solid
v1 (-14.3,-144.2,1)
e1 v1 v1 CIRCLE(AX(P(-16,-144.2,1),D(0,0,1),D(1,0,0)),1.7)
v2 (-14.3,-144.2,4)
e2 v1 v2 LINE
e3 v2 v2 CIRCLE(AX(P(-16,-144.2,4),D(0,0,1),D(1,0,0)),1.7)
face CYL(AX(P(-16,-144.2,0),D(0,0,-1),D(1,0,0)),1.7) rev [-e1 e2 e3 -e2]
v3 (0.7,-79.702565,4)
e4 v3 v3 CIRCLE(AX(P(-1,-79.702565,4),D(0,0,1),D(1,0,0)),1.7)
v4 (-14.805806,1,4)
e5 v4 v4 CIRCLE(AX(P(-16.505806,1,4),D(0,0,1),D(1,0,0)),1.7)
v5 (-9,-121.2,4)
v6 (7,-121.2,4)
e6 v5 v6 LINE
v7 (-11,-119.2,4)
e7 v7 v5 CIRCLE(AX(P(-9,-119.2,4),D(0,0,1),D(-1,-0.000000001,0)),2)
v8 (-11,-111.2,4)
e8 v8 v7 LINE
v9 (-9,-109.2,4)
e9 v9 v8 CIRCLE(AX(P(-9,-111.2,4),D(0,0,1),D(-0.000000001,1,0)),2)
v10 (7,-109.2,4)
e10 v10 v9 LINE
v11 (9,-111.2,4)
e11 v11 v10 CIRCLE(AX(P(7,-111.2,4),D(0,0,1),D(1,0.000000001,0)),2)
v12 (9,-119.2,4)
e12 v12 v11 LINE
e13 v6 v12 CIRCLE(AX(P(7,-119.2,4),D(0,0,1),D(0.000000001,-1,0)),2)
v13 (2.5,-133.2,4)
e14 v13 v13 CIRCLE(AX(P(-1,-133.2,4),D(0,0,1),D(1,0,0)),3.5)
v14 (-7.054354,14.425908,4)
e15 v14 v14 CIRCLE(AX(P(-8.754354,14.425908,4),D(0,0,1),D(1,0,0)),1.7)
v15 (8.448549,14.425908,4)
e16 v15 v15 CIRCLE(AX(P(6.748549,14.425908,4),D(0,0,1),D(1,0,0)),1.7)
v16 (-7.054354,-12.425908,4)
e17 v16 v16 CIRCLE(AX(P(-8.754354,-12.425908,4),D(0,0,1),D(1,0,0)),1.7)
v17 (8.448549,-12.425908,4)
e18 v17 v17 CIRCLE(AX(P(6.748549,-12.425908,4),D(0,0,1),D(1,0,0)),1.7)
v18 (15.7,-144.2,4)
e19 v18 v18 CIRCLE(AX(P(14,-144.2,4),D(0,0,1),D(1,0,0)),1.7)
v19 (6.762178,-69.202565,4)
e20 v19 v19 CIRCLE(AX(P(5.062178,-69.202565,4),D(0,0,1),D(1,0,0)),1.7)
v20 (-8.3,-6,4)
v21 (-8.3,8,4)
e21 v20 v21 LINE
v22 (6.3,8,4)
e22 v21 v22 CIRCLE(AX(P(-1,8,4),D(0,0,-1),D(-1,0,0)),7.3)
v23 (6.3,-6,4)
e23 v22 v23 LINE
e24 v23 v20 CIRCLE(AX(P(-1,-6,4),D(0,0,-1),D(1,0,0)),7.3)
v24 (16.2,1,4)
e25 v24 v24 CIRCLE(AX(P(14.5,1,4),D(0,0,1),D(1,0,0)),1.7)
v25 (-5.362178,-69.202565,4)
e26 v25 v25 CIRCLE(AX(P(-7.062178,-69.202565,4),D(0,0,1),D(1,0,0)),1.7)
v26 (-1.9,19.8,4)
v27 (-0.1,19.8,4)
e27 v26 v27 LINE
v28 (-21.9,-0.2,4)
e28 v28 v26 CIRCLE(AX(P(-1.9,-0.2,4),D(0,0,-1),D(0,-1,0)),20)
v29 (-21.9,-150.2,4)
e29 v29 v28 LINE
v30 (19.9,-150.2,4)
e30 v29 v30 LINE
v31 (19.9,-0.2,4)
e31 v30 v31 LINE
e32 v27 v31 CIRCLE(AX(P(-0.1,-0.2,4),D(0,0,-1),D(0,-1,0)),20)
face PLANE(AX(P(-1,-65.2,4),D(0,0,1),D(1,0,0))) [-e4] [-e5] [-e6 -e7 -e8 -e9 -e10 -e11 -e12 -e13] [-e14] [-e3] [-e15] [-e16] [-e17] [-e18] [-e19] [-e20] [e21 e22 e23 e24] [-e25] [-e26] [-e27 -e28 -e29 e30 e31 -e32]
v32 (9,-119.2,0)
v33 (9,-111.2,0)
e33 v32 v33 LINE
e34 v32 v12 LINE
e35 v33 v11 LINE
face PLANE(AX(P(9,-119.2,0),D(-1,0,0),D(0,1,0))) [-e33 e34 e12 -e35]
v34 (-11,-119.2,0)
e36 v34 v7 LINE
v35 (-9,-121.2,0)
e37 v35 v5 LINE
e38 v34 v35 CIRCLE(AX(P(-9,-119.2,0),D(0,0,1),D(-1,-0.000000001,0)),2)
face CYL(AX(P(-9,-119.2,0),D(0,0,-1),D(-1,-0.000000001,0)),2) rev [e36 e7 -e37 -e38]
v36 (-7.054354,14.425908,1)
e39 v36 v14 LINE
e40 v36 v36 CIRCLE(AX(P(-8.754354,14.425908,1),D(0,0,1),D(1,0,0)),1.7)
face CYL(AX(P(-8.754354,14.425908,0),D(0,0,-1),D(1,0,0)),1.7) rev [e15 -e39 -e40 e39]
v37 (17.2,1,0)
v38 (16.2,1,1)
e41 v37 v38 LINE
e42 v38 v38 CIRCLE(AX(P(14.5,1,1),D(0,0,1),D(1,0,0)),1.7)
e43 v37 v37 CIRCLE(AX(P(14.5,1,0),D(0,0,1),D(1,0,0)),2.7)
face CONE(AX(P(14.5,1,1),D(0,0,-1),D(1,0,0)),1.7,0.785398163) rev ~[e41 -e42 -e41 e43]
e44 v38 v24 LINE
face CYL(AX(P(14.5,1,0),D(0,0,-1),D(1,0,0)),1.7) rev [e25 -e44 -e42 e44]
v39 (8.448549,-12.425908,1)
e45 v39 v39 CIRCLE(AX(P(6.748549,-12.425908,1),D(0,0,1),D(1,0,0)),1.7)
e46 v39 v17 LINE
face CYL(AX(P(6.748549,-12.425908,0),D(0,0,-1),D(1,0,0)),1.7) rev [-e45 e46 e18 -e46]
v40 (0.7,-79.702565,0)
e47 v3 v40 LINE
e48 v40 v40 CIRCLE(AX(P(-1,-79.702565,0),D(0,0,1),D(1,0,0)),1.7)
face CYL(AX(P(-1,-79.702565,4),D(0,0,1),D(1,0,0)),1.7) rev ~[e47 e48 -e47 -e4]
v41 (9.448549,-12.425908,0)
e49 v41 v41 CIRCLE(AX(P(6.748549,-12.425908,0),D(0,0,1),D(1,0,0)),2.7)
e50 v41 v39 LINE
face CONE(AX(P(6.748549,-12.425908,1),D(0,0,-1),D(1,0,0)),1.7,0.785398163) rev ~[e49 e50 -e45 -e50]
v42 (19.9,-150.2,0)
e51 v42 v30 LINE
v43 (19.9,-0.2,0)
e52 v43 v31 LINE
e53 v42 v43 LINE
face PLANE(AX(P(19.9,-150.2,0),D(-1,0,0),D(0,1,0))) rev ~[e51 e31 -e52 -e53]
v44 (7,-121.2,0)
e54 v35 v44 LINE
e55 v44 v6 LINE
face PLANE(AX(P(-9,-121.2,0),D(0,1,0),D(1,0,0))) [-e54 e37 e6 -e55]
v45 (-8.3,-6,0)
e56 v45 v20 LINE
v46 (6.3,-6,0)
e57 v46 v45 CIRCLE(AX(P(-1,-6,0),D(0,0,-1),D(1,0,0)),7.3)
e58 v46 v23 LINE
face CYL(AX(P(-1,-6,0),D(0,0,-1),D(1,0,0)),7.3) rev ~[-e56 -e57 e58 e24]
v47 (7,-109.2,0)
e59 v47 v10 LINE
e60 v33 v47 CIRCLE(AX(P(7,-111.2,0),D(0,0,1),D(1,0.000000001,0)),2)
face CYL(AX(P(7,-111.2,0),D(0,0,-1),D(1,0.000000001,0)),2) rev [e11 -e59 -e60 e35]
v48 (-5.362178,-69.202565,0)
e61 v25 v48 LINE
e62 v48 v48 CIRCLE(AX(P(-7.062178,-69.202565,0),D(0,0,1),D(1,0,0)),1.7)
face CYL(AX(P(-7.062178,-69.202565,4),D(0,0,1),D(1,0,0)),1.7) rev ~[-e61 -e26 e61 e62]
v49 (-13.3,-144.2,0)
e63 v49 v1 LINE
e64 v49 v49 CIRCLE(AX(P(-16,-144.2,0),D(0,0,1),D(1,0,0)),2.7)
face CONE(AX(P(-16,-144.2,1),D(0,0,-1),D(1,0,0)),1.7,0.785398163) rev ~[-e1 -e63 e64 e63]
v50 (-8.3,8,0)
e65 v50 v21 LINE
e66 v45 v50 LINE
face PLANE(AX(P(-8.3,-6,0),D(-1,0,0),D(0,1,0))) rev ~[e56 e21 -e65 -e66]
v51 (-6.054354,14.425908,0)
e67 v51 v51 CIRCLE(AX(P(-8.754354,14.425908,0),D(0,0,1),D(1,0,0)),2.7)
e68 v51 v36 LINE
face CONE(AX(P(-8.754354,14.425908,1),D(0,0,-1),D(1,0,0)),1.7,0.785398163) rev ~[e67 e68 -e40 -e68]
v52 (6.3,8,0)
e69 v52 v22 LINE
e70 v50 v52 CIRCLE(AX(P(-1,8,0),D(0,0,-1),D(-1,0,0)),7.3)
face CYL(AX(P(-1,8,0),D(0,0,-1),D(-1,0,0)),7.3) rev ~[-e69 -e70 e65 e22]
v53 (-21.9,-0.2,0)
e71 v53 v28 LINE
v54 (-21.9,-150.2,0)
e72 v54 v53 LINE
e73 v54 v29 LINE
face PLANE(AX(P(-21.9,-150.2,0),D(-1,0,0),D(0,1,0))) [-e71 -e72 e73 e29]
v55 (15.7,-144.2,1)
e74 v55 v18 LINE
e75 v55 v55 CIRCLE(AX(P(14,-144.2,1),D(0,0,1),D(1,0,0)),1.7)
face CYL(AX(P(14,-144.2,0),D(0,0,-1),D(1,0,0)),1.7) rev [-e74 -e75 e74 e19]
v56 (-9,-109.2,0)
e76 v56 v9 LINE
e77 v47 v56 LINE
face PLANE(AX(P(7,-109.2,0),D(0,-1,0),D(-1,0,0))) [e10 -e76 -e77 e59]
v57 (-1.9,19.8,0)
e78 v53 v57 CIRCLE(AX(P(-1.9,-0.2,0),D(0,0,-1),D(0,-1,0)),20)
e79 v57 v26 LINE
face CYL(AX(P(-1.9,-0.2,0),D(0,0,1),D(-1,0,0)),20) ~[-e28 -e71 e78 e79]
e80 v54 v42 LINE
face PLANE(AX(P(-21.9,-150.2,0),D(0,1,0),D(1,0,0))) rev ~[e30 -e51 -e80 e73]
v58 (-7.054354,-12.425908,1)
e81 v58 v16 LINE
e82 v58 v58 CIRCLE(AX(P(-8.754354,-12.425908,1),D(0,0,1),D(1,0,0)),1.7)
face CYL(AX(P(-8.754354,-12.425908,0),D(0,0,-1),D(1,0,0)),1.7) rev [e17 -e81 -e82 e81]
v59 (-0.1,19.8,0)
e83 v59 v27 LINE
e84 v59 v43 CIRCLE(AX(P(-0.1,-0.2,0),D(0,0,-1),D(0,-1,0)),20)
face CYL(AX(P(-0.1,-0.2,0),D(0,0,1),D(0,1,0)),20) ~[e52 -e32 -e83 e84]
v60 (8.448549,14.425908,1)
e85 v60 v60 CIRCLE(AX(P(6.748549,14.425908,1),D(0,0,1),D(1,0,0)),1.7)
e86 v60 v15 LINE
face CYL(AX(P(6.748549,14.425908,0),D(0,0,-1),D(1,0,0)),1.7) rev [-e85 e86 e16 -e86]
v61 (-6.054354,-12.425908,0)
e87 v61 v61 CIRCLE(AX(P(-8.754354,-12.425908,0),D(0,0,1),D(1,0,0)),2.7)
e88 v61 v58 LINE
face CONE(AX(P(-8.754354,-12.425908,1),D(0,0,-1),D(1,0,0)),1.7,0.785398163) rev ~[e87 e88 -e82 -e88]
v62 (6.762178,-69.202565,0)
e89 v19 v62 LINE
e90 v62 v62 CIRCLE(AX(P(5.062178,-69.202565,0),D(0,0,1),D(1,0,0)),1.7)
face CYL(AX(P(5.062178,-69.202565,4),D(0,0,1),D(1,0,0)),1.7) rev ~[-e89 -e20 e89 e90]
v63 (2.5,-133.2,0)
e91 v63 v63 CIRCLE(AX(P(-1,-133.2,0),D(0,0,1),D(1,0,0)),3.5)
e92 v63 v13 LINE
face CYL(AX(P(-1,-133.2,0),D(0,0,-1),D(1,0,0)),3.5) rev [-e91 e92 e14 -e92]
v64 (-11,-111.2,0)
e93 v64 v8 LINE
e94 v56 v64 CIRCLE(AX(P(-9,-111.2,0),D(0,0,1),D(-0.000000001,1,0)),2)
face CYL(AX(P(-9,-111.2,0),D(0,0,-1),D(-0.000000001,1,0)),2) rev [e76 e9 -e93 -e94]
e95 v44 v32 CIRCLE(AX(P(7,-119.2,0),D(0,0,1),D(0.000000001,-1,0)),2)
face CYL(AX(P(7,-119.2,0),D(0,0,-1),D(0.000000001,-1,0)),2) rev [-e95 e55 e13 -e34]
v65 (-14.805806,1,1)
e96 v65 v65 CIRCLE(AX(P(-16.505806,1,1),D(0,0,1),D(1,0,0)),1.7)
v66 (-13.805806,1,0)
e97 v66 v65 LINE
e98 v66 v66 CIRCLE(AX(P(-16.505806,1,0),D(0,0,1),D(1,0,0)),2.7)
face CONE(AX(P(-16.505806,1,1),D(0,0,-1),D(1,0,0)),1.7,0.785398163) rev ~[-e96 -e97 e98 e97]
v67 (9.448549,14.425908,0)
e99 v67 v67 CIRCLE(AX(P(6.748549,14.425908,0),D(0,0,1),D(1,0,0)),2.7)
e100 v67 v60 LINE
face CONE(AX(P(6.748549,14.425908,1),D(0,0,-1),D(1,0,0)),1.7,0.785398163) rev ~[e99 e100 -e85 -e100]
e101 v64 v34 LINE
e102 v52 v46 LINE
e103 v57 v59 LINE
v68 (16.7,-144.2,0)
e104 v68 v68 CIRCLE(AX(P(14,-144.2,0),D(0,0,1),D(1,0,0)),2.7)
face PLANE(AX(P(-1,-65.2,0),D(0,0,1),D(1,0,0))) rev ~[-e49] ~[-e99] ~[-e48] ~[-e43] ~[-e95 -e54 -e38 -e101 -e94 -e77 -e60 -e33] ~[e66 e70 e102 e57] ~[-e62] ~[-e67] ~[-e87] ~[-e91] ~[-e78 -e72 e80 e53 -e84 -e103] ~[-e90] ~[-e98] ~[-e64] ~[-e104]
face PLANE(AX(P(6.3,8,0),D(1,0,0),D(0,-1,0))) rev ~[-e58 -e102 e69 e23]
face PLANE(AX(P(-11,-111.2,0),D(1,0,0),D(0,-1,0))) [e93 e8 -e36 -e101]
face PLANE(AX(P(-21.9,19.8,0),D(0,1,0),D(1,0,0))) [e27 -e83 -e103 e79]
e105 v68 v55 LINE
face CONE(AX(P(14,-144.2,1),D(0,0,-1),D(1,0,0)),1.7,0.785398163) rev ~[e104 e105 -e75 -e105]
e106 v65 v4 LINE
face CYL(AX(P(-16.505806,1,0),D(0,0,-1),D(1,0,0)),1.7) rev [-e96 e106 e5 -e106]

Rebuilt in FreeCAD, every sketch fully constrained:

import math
import FreeCAD as App
import Part
import Sketcher

V = App.Vector
Q = App.Units.Quantity


def edges_at(feature, points):
    """Names of the edges that pass closest to the given points."""
    edges = feature.Shape.Edges
    near = lambda p: min(range(len(edges)), key=lambda i: edges[i].distToShape(Part.Vertex(*p))[0])
    return sorted({f"Edge{near(p) + 1}" for p in points})


def add_polygon(sketch, points):
    """Adds a closed chain of lines whose ends are joined by coincident constraints."""
    first, n = sketch.GeometryCount, len(points)
    for a, b in zip(points, points[1:] + points[:1]):
        sketch.addGeometry(Part.LineSegment(App.Vector(*a, 0), App.Vector(*b, 0)), False)
    for i in range(n):
        sketch.addConstraint(Sketcher.Constraint("Coincident", first + i, 2, first + (i + 1) % n, 1))

doc = App.newDocument("Part")
params = doc.addObject("Spreadsheet::Sheet", "Params")
for row, (alias, value) in enumerate([
    ("sketch1_diameter", "7 mm"),
    ("sketch1_radius", "2 mm"),
    ("sketch1_diameter2", "3.4 mm"),
    ("sketch1_radius2", "7.3 mm"),
    ("sketch1_width", "16 mm"),
    ("pad1_length", "4 mm"),
    ("fillet_radius", "20 mm"),
    ("sketch2_diameter", "3.4 mm"),
    ("pocket1_length", "10 mm"),
    ("chamfer_size", "1 mm"),
], start=1):
    params.set(f"A{row}", alias)
    params.set(f"B{row}", "=" + value)
    params.setAlias(f"B{row}", alias)

body = doc.addObject("PartDesign::Body", "Body")

# Sketch on XY plane
sketch1 = body.newObject("Sketcher::SketchObject", "Sketch")
sketch1.AttachmentSupport = (doc.getObject("XY_Plane"), [""])
sketch1.MapMode = "FlatFace"
add_polygon(sketch1, [(-21.9, 19.8), (-21.9, -150.2), (19.9, -150.2), (19.9, 19.8)])  # lines 0-3
sketch1.addGeometry(Part.Circle(V(-16, -144.2, 0), V(0, 0, 1), 1.7), False)  # 4
sketch1.addGeometry(Part.Circle(V(-1, -133.2, 0), V(0, 0, 1), 3.5), False)  # 5
sketch1.addGeometry(Part.LineSegment(V(7, -121.2, 0), V(-9, -121.2, 0)), False)  # 6
sketch1.addGeometry(Part.ArcOfCircle(Part.Circle(V(-9, -119.2, 0), V(0, 0, 1), 2), math.radians(-180), math.radians(-90)), False)  # 7
sketch1.addGeometry(Part.LineSegment(V(-11, -119.2, 0), V(-11, -111.2, 0)), False)  # 8
sketch1.addGeometry(Part.ArcOfCircle(Part.Circle(V(-9, -111.2, 0), V(0, 0, 1), 2), math.radians(90), math.radians(180)), False)  # 9
sketch1.addGeometry(Part.LineSegment(V(-9, -109.2, 0), V(7, -109.2, 0)), False)  # 10
sketch1.addGeometry(Part.ArcOfCircle(Part.Circle(V(7, -111.2, 0), V(0, 0, 1), 2), math.radians(0), math.radians(90)), False)  # 11
sketch1.addGeometry(Part.LineSegment(V(9, -111.2, 0), V(9, -119.2, 0)), False)  # 12
sketch1.addGeometry(Part.ArcOfCircle(Part.Circle(V(7, -119.2, 0), V(0, 0, 1), 2), math.radians(-90), math.radians(0)), False)  # 13
sketch1.addGeometry(Part.Circle(V(14, -144.2, 0), V(0, 0, 1), 1.7), False)  # 14
sketch1.addGeometry(Part.Circle(V(-16.5, 1, 0), V(0, 0, 1), 1.7), False)  # 15
sketch1.addGeometry(Part.Circle(V(-8.8, -12.4, 0), V(0, 0, 1), 1.7), False)  # 16
sketch1.addGeometry(Part.Circle(V(-8.8, 14.4, 0), V(0, 0, 1), 1.7), False)  # 17
sketch1.addGeometry(Part.Circle(V(6.7, -12.4, 0), V(0, 0, 1), 1.7), False)  # 18
sketch1.addGeometry(Part.ArcOfCircle(Part.Circle(V(-1, 8, 0), V(0, 0, 1), 7.3), math.radians(0), math.radians(180)), False)  # 19
sketch1.addGeometry(Part.LineSegment(V(6.3, 8, 0), V(6.3, -6, 0)), False)  # 20
sketch1.addGeometry(Part.ArcOfCircle(Part.Circle(V(-1, -6, 0), V(0, 0, 1), 7.3), math.radians(180), math.radians(360)), False)  # 21
sketch1.addGeometry(Part.LineSegment(V(-8.3, -6, 0), V(-8.3, 8, 0)), False)  # 22
sketch1.addGeometry(Part.Circle(V(6.7, 14.4, 0), V(0, 0, 1), 1.7), False)  # 23
sketch1.addGeometry(Part.Circle(V(14.5, 1, 0), V(0, 0, 1), 1.7), False)  # 24
sketch1.addConstraint([
    Sketcher.Constraint("Tangent", 6, 2, 7, 2),
    Sketcher.Constraint("Tangent", 7, 1, 8, 1),
    Sketcher.Constraint("Tangent", 8, 2, 9, 2),
    Sketcher.Constraint("Tangent", 9, 1, 10, 1),
    Sketcher.Constraint("Tangent", 10, 2, 11, 2),
    Sketcher.Constraint("Tangent", 11, 1, 12, 1),
    Sketcher.Constraint("Tangent", 12, 2, 13, 2),
    Sketcher.Constraint("Tangent", 13, 1, 6, 1),
    Sketcher.Constraint("Tangent", 19, 1, 20, 1),
    Sketcher.Constraint("Tangent", 20, 2, 21, 2),
    Sketcher.Constraint("Tangent", 21, 1, 22, 1),
    Sketcher.Constraint("Tangent", 22, 2, 19, 2),
    Sketcher.Constraint("Vertical", 0),
    Sketcher.Constraint("Horizontal", 1),
    Sketcher.Constraint("Vertical", 2),
    Sketcher.Constraint("Horizontal", 3),
    Sketcher.Constraint("Horizontal", 6),
    Sketcher.Constraint("Vertical", 8),
    Sketcher.Constraint("Horizontal", 10),
    Sketcher.Constraint("Vertical", 12),
    Sketcher.Constraint("Vertical", 20),
    Sketcher.Constraint("Vertical", 22),
    Sketcher.Constraint("Equal", 7, 9),
    Sketcher.Constraint("Equal", 9, 11),
    Sketcher.Constraint("Equal", 11, 13),
    Sketcher.Constraint("Equal", 4, 14),
    Sketcher.Constraint("Equal", 14, 15),
    Sketcher.Constraint("Equal", 15, 16),
    Sketcher.Constraint("Equal", 16, 17),
    Sketcher.Constraint("Equal", 17, 18),
    Sketcher.Constraint("Equal", 18, 23),
    Sketcher.Constraint("Equal", 23, 24),
    Sketcher.Constraint("Horizontal", 4, 3, 14, 3),
    Sketcher.Constraint("Horizontal", 16, 3, 18, 3),
    Sketcher.Constraint("Horizontal", 17, 3, 23, 3),
    Sketcher.Constraint("Horizontal", 15, 3, 24, 3),
    Sketcher.Constraint("Vertical", 16, 3, 17, 3),
    Sketcher.Constraint("Vertical", 5, 3, 19, 3),
    Sketcher.Constraint("Vertical", 18, 3, 23, 3),
    Sketcher.Constraint("Diameter", 5, Q("7 mm")),
    Sketcher.Constraint("Radius", 7, Q("2 mm")),
    Sketcher.Constraint("Diameter", 4, Q("3.4 mm")),
    Sketcher.Constraint("Radius", 19, Q("7.3 mm")),
    Sketcher.Constraint("DistanceX", 6, 2, 6, 1, Q("16 mm")),
    Sketcher.Constraint("DistanceY", 0, 2, 0, 1, Q("170 mm")),
    Sketcher.Constraint("DistanceY", 8, 1, 8, 2, Q("8 mm")),
    Sketcher.Constraint("DistanceY", 20, 2, 20, 1, Q("14 mm")),
    Sketcher.Constraint("DistanceX", 1, 1, 1, 2, Q("41.8 mm")),
    Sketcher.Constraint("DistanceX", 4, 3, -1, 1, Q("16 mm")),
    Sketcher.Constraint("DistanceX", 5, 3, -1, 1, Q("1 mm")),
    Sketcher.Constraint("DistanceX", 7, 3, -1, 1, Q("9 mm")),
    Sketcher.Constraint("DistanceX", -1, 1, 14, 3, Q("14 mm")),
    Sketcher.Constraint("DistanceY", -1, 1, 15, 3, Q("1 mm")),
    Sketcher.Constraint("DistanceY", -1, 1, 19, 3, Q("8 mm")),
    Sketcher.Constraint("DistanceY", 4, 3, 5, 3, Q("11 mm")),
    Sketcher.Constraint("DistanceY", 5, 3, 7, 3, Q("14 mm")),
    Sketcher.Constraint("DistanceY", 0, 2, 4, 3, Q("6 mm")),
    Sketcher.Constraint("DistanceY", 4, 3, -1, 1, Q("144.2 mm")),
    Sketcher.Constraint("DistanceX", -1, 1, 24, 3, Q("14.5 mm")),
    Sketcher.Constraint("DistanceX", 0, 2, -1, 1, Q("21.9 mm")),
    Sketcher.Constraint("DistanceX", -1, 1, 18, 3, Q("6.748549 mm")),
    Sketcher.Constraint("DistanceX", 15, 3, 16, 3, Q("7.751451 mm")),
    Sketcher.Constraint("DistanceX", 15, 3, -1, 1, Q("16.505806 mm")),
    Sketcher.Constraint("DistanceY", 16, 3, -1, 1, Q("12.425908 mm")),
    Sketcher.Constraint("DistanceY", -1, 1, 17, 3, Q("14.425908 mm")),
])
sketch1.setExpression("Constraints[43]", "Params.sketch1_diameter")
sketch1.setExpression("Constraints[44]", "Params.sketch1_radius")
sketch1.setExpression("Constraints[45]", "Params.sketch1_diameter2")
sketch1.setExpression("Constraints[46]", "Params.sketch1_radius2")
sketch1.setExpression("Constraints[47]", "Params.sketch1_width")
pad1 = body.newObject("PartDesign::Pad", "Pad")
pad1.Profile = sketch1
pad1.setExpression("Length", "Params.pad1_length")
doc.recompute()

fillet = body.newObject("PartDesign::Fillet", "Fillet")
fillet.Base = (pad1, edges_at(pad1, [(-21.9, 19.8, 2), (19.9, 19.8, 2)]))
fillet.setExpression("Radius", "Params.fillet_radius")

# Sketch on XY plane
sketch2 = body.newObject("Sketcher::SketchObject", "Sketch001")
sketch2.AttachmentSupport = (doc.getObject("XY_Plane"), [""])
sketch2.MapMode = "FlatFace"
sketch2.AttachmentOffset = App.Placement(V(0, 0, 4), App.Rotation())
sketch2.addGeometry([
    Part.Circle(V(-1, -79.7, 0), V(0, 0, 1), 1.7),
    Part.Circle(V(5.1, -69.2, 0), V(0, 0, 1), 1.7),
    Part.Circle(V(-7.1, -69.2, 0), V(0, 0, 1), 1.7),
], False)
sketch2.addConstraint([
    Sketcher.Constraint("Equal", 0, 1),
    Sketcher.Constraint("Equal", 1, 2),
    Sketcher.Constraint("Horizontal", 1, 3, 2, 3),
    Sketcher.Constraint("Diameter", 0, Q("3.4 mm")),
    Sketcher.Constraint("DistanceX", 0, 3, -1, 1, Q("1 mm")),
    Sketcher.Constraint("DistanceY", 0, 3, 1, 3, Q("10.5 mm")),
    Sketcher.Constraint("DistanceY", 0, 3, -1, 1, Q("79.702565 mm")),
    Sketcher.Constraint("DistanceX", -1, 1, 1, 3, Q("5.062178 mm")),
    Sketcher.Constraint("DistanceX", 2, 3, -1, 1, Q("7.062178 mm")),
])
sketch2.setExpression("Constraints[3]", "Params.sketch2_diameter")
pocket1 = body.newObject("PartDesign::Pocket", "Pocket")
pocket1.Profile = sketch2
pocket1.setExpression("Length", "Params.pocket1_length")
doc.recompute()

chamfer = body.newObject("PartDesign::Chamfer", "Chamfer")
chamfer.Base = (pocket1, edges_at(pocket1, [
    (5.049, -12.426, 0),
    (-10.454, -12.426, 0),
    (-18.206, 1, 0),
    (-10.454, 14.426, 0),
    (5.049, 14.426, 0),
    (12.8, 1, 0),
    (12.3, -144.2, 0),
    (-17.7, -144.2, 0),
]))
chamfer.setExpression("Size", "Params.chamfer_size")

doc.recompute()
